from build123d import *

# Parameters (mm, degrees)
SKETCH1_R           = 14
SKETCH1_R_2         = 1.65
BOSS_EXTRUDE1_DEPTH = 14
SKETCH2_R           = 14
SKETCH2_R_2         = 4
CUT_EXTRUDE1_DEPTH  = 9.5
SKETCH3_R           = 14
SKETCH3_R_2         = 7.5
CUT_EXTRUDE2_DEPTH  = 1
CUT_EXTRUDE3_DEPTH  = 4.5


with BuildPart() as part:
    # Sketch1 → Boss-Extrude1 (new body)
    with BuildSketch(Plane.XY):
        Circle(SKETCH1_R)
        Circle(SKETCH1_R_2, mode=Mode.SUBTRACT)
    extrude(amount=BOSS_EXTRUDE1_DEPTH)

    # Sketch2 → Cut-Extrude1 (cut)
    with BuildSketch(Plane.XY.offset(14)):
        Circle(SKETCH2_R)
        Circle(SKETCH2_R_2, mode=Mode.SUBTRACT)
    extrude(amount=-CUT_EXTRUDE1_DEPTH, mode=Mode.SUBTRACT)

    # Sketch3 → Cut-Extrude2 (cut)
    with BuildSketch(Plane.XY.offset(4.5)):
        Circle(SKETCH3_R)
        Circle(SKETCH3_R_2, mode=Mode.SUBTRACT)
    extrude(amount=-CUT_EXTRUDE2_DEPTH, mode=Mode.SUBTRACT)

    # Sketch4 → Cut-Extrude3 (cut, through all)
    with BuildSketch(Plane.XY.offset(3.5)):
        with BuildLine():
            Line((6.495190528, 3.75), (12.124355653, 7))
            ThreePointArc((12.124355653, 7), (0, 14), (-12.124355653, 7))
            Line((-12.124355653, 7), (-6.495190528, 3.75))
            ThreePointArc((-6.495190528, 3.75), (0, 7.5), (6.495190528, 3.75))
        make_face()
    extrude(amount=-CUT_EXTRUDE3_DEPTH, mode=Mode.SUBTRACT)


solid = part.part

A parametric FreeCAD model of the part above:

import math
import FreeCAD as App
import Part
import Sketcher
from FreeCAD import Vector
Q = App.Units.Quantity

doc = App.newDocument("Part")
body = doc.addObject("PartDesign::Body", "Body")

sketch1 = body.newObject("Sketcher::SketchObject", "Sketch")
sketch1.AttachmentSupport = (doc.getObject("XY_Plane"), [""])
sketch1.MapMode = "FlatFace"
sketch1.addGeometry(Part.Circle(Vector(0, 0, 0), Vector(0, 0, 1), 14), False)
sketch1.addGeometry(Part.Circle(Vector(0, 0, 0), Vector(0, 0, 1), 1.65), False)
sketch1.addConstraint(Sketcher.Constraint("Coincident", 0, 3, -1, 1))
sketch1.addConstraint(Sketcher.Constraint("Coincident", 1, 3, -1, 1))
sketch1.addConstraint(Sketcher.Constraint("Diameter", 0, 28.0))
sketch1.addConstraint(Sketcher.Constraint("Diameter", 1, 3.3))
pad1 = body.newObject("PartDesign::Pad", "Pad")
pad1.Profile = sketch1
pad1.Length = 14

sketch2 = body.newObject("Sketcher::SketchObject", "Sketch001")
sketch2.AttachmentSupport = (doc.getObject("XY_Plane"), [""])
sketch2.MapMode = "FlatFace"
sketch2.AttachmentOffset = App.Placement(Vector(0, 0, 14), App.Rotation())
sketch2.addGeometry(Part.Circle(Vector(0, 0, 0), Vector(0, 0, 1), 14), False)
sketch2.addGeometry(Part.Circle(Vector(0, 0, 0), Vector(0, 0, 1), 4), False)
sketch2.addConstraint(Sketcher.Constraint("Coincident", 0, 3, -1, 1))
sketch2.addConstraint(Sketcher.Constraint("Coincident", 1, 3, -1, 1))
sketch2.addConstraint(Sketcher.Constraint("Diameter", 0, 28.0))
sketch2.addConstraint(Sketcher.Constraint("Diameter", 1, 8.0))
pocket1 = body.newObject("PartDesign::Pocket", "Pocket")
pocket1.Profile = sketch2
pocket1.Length = 9.5

sketch3 = body.newObject("Sketcher::SketchObject", "Sketch002")
sketch3.AttachmentSupport = (doc.getObject("XY_Plane"), [""])
sketch3.MapMode = "FlatFace"
sketch3.AttachmentOffset = App.Placement(Vector(0, 0, 4.5), App.Rotation())
sketch3.addGeometry(Part.Circle(Vector(0, 0, 0), Vector(0, 0, 1), 14), False)
sketch3.addGeometry(Part.Circle(Vector(0, 0, 0), Vector(0, 0, 1), 7.5), False)
sketch3.addConstraint(Sketcher.Constraint("Coincident", 0, 3, -1, 1))
sketch3.addConstraint(Sketcher.Constraint("Coincident", 1, 3, -1, 1))
sketch3.addConstraint(Sketcher.Constraint("Diameter", 0, 28.0))
sketch3.addConstraint(Sketcher.Constraint("Diameter", 1, 15.0))
pocket2 = body.newObject("PartDesign::Pocket", "Pocket001")
pocket2.Profile = sketch3
pocket2.Length = 1

sketch4 = body.newObject("Sketcher::SketchObject", "Sketch003")
sketch4.AttachmentSupport = (doc.getObject("XY_Plane"), [""])
sketch4.MapMode = "FlatFace"
sketch4.AttachmentOffset = App.Placement(Vector(0, 0, 3.5), App.Rotation())
sketch4.addGeometry(Part.LineSegment(Vector(6.495191, 3.75, 0), Vector(12.124356, 7, 0)), False)
sketch4.addGeometry(Part.ArcOfCircle(Part.Circle(Vector(0, 0, 0), Vector(0, 0, 1), 14), math.radians(30), math.radians(150)), False)
sketch4.addGeometry(Part.LineSegment(Vector(-12.124356, 7, 0), Vector(-6.495191, 3.75, 0)), False)
sketch4.addGeometry(Part.ArcOfCircle(Part.Circle(Vector(0, 0, 0), Vector(0, 0, 1), 7.5), math.radians(30), math.radians(150)), False)
sketch4.addConstraint(Sketcher.Constraint("Coincident", 0, 2, 1, 1))
sketch4.addConstraint(Sketcher.Constraint("Coincident", 1, 2, 2, 1))
sketch4.addConstraint(Sketcher.Constraint("Coincident", 2, 2, 3, 2))
sketch4.addConstraint(Sketcher.Constraint("Coincident", 3, 1, 0, 1))
sketch4.addConstraint(Sketcher.Constraint("Coincident", 1, 3, -1, 1))
sketch4.addConstraint(Sketcher.Constraint("Coincident", 3, 3, -1, 1))
sketch4.addConstraint(Sketcher.Constraint("Horizontal", 0, 2, 1, 2))
sketch4.addConstraint(Sketcher.Constraint("Horizontal", 2, 2, 3, 1))
sketch4.addConstraint(Sketcher.Constraint("Radius", 1, 14.0))
sketch4.addConstraint(Sketcher.Constraint("Radius", 3, 7.5))
sketch4.addConstraint(Sketcher.Constraint("Angle", 0, Q("30 deg")))
sketch4.addConstraint(Sketcher.Constraint("DistanceY", -1, 1, 0, 2, 7.0))
pocket3 = body.newObject("PartDesign::Pocket", "Pocket002")
pocket3.Profile = sketch4
pocket3.Type = "ThroughAll"

doc.recompute()
